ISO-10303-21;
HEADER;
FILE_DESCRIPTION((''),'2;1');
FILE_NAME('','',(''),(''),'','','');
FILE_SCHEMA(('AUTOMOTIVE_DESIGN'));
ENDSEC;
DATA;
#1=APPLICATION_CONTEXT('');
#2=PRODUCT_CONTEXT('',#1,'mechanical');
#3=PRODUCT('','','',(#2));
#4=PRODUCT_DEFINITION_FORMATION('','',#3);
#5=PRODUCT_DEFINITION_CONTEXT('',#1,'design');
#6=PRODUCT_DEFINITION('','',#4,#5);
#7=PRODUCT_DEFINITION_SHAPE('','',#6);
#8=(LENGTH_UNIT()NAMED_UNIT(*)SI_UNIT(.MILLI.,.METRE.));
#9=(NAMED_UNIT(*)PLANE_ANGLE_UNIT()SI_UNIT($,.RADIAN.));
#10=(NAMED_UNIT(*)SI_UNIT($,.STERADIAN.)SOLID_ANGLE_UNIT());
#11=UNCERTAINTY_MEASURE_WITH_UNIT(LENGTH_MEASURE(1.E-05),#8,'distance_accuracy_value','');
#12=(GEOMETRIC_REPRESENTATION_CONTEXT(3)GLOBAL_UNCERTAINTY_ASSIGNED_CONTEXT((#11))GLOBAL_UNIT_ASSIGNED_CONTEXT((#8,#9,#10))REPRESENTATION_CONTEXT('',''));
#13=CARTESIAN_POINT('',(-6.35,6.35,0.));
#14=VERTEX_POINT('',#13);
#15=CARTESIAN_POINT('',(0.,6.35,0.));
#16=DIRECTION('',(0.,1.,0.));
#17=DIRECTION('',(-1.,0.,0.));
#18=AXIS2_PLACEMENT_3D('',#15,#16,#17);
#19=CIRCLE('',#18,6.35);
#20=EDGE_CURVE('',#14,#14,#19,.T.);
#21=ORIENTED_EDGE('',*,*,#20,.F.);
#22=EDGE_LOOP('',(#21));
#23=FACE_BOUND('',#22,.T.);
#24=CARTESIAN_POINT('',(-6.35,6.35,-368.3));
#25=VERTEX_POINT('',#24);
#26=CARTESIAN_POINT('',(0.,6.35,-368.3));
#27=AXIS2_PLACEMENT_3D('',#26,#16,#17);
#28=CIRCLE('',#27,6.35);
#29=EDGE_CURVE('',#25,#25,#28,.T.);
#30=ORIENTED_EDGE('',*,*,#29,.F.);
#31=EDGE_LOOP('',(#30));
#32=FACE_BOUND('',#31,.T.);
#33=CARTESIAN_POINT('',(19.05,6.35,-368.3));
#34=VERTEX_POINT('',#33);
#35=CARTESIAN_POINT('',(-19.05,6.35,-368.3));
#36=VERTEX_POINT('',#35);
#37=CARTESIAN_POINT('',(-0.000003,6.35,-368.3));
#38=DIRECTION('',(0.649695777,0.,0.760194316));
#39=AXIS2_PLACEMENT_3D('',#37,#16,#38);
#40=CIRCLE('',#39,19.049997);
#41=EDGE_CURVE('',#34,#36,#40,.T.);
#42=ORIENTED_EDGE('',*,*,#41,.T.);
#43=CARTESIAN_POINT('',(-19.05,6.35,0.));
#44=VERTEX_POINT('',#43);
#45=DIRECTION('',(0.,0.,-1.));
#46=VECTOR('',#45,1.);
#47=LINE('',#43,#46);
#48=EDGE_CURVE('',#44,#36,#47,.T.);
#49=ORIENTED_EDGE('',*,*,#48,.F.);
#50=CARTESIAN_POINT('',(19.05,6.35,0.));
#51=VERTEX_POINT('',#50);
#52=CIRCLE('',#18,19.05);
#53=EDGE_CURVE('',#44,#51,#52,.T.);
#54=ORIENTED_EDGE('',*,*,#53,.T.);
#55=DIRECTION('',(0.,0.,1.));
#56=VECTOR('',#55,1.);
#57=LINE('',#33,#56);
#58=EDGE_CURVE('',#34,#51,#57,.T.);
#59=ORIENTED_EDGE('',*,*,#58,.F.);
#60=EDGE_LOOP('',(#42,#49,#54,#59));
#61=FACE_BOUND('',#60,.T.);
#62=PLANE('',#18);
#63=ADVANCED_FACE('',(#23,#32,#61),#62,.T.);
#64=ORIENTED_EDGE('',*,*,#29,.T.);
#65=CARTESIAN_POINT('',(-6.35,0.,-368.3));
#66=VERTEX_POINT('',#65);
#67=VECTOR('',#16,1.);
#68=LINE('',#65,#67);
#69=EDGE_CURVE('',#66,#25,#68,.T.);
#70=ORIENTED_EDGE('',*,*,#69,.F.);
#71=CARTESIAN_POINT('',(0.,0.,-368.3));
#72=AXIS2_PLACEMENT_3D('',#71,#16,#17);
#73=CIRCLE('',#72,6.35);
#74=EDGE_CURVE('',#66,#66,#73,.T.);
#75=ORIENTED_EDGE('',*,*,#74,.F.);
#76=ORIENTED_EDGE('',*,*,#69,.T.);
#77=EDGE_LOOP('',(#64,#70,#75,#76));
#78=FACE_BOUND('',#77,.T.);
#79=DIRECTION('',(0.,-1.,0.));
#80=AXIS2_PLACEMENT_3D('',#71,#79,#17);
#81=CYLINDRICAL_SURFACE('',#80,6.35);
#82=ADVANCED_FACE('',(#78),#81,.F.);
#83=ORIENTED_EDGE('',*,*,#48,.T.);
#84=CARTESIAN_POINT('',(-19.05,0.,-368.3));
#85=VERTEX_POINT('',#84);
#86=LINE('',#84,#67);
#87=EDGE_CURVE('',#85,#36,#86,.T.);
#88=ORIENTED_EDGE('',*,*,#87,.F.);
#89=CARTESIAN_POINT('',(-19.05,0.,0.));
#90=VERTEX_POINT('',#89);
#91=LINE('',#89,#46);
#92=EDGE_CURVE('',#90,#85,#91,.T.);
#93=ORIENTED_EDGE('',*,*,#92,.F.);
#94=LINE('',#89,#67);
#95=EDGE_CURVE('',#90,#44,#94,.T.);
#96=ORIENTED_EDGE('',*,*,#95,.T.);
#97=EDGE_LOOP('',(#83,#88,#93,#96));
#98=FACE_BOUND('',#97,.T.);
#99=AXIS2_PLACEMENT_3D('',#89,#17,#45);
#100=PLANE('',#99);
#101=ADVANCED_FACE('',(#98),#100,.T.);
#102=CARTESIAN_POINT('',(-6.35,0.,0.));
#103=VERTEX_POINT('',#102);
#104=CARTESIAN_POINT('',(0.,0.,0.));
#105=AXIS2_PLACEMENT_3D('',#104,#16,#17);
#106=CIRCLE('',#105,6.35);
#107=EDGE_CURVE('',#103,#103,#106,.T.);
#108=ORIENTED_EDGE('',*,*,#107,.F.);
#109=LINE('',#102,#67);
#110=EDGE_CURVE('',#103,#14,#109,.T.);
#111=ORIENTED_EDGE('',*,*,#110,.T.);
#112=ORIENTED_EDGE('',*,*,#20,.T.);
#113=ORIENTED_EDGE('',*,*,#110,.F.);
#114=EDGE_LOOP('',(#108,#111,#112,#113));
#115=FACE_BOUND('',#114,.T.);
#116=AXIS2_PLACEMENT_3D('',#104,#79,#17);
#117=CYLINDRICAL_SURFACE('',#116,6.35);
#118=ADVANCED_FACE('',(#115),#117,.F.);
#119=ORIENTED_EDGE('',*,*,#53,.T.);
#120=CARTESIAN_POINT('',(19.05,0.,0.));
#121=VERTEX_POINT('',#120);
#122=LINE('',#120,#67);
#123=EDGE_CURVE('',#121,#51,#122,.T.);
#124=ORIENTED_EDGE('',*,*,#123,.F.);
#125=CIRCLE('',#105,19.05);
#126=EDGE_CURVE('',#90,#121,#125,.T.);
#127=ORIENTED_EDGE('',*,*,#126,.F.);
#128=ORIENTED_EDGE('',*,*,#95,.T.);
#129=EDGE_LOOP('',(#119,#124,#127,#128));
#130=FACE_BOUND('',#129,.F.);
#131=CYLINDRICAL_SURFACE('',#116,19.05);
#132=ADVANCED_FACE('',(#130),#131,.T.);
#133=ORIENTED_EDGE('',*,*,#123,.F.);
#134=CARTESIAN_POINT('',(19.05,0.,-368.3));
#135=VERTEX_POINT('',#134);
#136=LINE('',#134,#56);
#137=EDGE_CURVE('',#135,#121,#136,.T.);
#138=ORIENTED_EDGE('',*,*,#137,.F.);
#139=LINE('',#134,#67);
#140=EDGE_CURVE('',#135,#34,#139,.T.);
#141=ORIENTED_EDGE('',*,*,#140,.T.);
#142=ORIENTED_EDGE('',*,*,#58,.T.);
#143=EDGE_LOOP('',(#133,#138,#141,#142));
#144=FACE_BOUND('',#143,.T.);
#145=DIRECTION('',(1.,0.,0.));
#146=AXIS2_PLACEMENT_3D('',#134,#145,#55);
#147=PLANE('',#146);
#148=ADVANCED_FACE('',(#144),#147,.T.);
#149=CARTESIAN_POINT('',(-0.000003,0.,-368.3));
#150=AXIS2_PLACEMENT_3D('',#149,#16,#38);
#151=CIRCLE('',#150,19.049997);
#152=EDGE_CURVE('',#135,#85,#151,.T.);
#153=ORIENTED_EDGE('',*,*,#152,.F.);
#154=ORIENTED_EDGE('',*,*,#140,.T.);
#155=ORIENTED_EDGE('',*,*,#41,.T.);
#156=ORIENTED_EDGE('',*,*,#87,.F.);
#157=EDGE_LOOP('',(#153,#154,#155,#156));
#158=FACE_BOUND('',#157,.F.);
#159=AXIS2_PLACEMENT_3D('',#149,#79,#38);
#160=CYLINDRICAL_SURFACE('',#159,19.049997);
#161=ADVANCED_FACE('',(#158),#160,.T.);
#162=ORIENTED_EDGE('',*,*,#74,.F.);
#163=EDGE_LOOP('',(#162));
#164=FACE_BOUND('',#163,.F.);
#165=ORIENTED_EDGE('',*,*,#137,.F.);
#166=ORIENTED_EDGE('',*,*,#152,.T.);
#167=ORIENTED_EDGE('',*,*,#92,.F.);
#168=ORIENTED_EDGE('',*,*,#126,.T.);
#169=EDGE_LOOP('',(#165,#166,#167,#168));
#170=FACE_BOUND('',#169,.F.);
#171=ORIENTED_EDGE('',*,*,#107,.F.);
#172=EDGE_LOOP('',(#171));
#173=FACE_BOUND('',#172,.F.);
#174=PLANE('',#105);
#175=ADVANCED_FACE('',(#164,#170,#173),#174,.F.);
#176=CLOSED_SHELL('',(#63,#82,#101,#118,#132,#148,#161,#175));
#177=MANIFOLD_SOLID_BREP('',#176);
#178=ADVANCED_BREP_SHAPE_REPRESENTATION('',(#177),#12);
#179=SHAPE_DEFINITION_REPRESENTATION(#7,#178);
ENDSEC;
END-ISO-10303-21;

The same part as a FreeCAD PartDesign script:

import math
import FreeCAD as App
import Part
import Sketcher
Q = App.Units.Quantity

doc = App.newDocument("Part")
params = doc.addObject("Spreadsheet::Sheet", "Params")
for row, (alias, value) in enumerate([
    ("sketch1_diameter", "0.5 in"),
    ("sketch1_height", "14.5 in"),
    ("sketch1_radius", "0.75 in"),
    ("pad1_length", "0.25 in"),
], start=1):
    params.set(f"A{row}", alias)
    params.set(f"B{row}", "=" + value)
    params.setAlias(f"B{row}", alias)

body = doc.addObject("PartDesign::Body", "Body")

# Sketch on XZ plane
sketch1 = doc.addObject("Sketcher::SketchObject", "Sketch")
body.addObject(sketch1)
sketch1.AttachmentSupport = (doc.XZ_Plane, [""])
sketch1.MapMode = "FlatFace"
sketch1.addGeometry([
    Part.LineSegment(App.Vector(-19, -368, 0), App.Vector(-19, 0, 0)),  # 0
    Part.ArcOfCircle(Part.Circle(App.Vector(0, 0, 0), App.Vector(0, 0, 1), 19), math.radians(0), math.radians(180)),  # 1
    Part.LineSegment(App.Vector(19, 0, 0), App.Vector(19, -368, 0)),  # 2
    Part.ArcOfCircle(Part.Circle(App.Vector(0, -368, 0), App.Vector(0, 0, 1), 19), math.radians(180), math.radians(360)),  # 3
    Part.Circle(App.Vector(0, -368, 0), App.Vector(0, 0, 1), 6),  # 4
    Part.Circle(App.Vector(0, 0, 0), App.Vector(0, 0, 1), 6),  # 5
], False)
sketch1.addConstraint([
    Sketcher.Constraint("Tangent", 0, 2, 1, 2),
    Sketcher.Constraint("Tangent", 1, 1, 2, 1),
    Sketcher.Constraint("Tangent", 2, 2, 3, 2),
    Sketcher.Constraint("Tangent", 3, 1, 0, 1),
    Sketcher.Constraint("Vertical", 0),
    Sketcher.Constraint("Vertical", 2),
    Sketcher.Constraint("Coincident", 1, 3, -1, 1),
    Sketcher.Constraint("Coincident", 5, 3, -1, 1),
    Sketcher.Constraint("Coincident", 4, 3, 3, 3),
    Sketcher.Constraint("Equal", 4, 5),
    Sketcher.Constraint("Diameter", 4, Q("0.5 in")),
    Sketcher.Constraint("DistanceY", 0, 1, 0, 2, Q("14.5 in")),
    Sketcher.Constraint("Radius", 1, Q("0.75 in")),
])
sketch1.setExpression("Constraints[10]", "Params.sketch1_diameter")
sketch1.setExpression("Constraints[11]", "Params.sketch1_height")
sketch1.setExpression("Constraints[12]", "Params.sketch1_radius")
pad1 = doc.addObject("PartDesign::Pad", "Pad")
body.addObject(pad1)
pad1.Profile = sketch1
pad1.setExpression("Length", "Params.pad1_length")
pad1.Reversed = True

doc.recompute()
